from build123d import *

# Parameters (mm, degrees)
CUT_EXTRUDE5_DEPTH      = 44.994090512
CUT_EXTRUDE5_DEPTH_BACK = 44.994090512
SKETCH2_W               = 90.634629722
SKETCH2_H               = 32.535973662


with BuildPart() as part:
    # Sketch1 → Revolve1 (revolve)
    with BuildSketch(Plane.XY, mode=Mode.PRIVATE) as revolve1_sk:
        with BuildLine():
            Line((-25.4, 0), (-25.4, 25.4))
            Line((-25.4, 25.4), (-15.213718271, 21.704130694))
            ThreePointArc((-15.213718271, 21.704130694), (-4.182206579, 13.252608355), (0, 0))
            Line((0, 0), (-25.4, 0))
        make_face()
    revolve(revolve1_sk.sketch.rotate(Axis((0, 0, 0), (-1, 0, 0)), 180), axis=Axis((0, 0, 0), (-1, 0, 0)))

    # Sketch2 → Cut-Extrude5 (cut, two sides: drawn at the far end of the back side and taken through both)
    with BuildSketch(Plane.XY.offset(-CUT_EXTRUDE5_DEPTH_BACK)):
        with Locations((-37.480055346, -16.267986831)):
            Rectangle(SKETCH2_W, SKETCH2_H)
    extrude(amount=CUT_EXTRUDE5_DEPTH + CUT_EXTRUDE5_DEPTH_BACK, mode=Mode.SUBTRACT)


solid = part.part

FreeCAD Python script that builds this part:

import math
import FreeCAD as App
import Part
import Sketcher
from FreeCAD import Vector
Q = App.Units.Quantity


def add_polygon(sketch, points):
    """Adds a closed chain of lines whose ends are joined by coincident constraints."""
    first, n = sketch.GeometryCount, len(points)
    for a, b in zip(points, points[1:] + points[:1]):
        sketch.addGeometry(Part.LineSegment(App.Vector(*a, 0), App.Vector(*b, 0)), False)
    for i in range(n):
        sketch.addConstraint(Sketcher.Constraint("Coincident", first + i, 2, first + (i + 1) % n, 1))

doc = App.newDocument("Part")
body = doc.addObject("PartDesign::Body", "Body")

sketch1 = doc.addObject("Sketcher::SketchObject", "Sketch")
body.addObject(sketch1)
sketch1.AttachmentSupport = (doc.XY_Plane, [""])
sketch1.MapMode = "FlatFace"
sketch1.addGeometry(Part.LineSegment(Vector(-25, 25, 0), Vector(-25, 0, 0)), False)
sketch1.addGeometry(Part.LineSegment(Vector(-25, 0, 0), Vector(0, 0, 0)), False)
sketch1.addGeometry(Part.ArcOfCircle(Part.Circle(Vector(-23, 0, 0), Vector(0, 0, 1), 23), math.radians(0), math.radians(70)), False)
sketch1.addGeometry(Part.LineSegment(Vector(-15, 22, 0), Vector(-25, 25, 0)), False)
sketch1.addConstraint(Sketcher.Constraint("Coincident", 0, 2, 1, 1))
sketch1.addConstraint(Sketcher.Constraint("Coincident", 1, 2, 2, 1))
sketch1.addConstraint(Sketcher.Constraint("Tangent", 2, 2, 3, 1))
sketch1.addConstraint(Sketcher.Constraint("Coincident", 3, 2, 0, 1))
sketch1.addConstraint(Sketcher.Constraint("Vertical", 0))
sketch1.addConstraint(Sketcher.Constraint("Horizontal", 1))
sketch1.addConstraint(Sketcher.Constraint("Coincident", 1, 2, -1, 1))
sketch1.addConstraint(Sketcher.Constraint("PointOnObject", 2, 3, -1))
sketch1.addConstraint(Sketcher.Constraint("Equal", 1, 0))
sketch1.addConstraint(Sketcher.Constraint("DistanceX", 1, 1, 1, 2, Q("1 in")))
sketch1.addConstraint(Sketcher.Constraint("Radius", 2, 23.088587))
revolution = doc.addObject("PartDesign::Revolution", "Revolution")
body.addObject(revolution)
revolution.Profile = sketch1
revolution.ReferenceAxis = (sketch1, ["H_Axis"])
revolution.Angle = 360

sketch2 = doc.addObject("Sketcher::SketchObject", "Sketch001")
body.addObject(sketch2)
sketch2.AttachmentSupport = (doc.XY_Plane, [""])
sketch2.MapMode = "FlatFace"
add_polygon(sketch2, [(-83, 0), (-83, -33), (8, -33), (8, 0)])
sketch2.addConstraint(Sketcher.Constraint("Vertical", 0))
sketch2.addConstraint(Sketcher.Constraint("Horizontal", 1))
sketch2.addConstraint(Sketcher.Constraint("Vertical", 2))
sketch2.addConstraint(Sketcher.Constraint("Horizontal", 3))
sketch2.addConstraint(Sketcher.Constraint("PointOnObject", 2, 2, -1))
sketch2.addConstraint(Sketcher.Constraint("DistanceX", 1, 1, 1, 2, 90.63463))
sketch2.addConstraint(Sketcher.Constraint("DistanceY", 0, 2, 0, 1, 32.535974))
sketch2.addConstraint(Sketcher.Constraint("DistanceX", 0, 2, -1, 1, 82.79737))
pocket1 = doc.addObject("PartDesign::Pocket", "Pocket")
body.addObject(pocket1)
pocket1.Profile = sketch2
pocket1.Type = "ThroughAll"
pocket1.Midplane = True

doc.recompute()
